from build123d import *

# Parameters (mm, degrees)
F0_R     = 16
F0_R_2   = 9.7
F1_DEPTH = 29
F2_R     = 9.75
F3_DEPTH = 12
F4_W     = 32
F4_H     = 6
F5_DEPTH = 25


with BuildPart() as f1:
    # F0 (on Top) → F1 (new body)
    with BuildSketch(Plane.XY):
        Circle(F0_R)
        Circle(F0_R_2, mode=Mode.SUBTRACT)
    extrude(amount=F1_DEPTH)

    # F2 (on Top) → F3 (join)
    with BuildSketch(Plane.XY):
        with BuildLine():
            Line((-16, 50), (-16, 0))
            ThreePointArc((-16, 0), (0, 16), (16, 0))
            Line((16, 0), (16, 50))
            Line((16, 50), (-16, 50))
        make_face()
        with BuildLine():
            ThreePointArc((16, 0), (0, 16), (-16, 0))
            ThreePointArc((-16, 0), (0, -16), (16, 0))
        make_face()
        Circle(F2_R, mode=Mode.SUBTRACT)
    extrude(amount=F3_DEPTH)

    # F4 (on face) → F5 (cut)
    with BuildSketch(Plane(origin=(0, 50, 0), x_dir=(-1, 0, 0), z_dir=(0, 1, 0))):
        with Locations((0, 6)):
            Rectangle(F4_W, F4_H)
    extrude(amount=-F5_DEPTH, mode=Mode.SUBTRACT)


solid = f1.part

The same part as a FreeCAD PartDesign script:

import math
import FreeCAD as App
import Part
import Sketcher

V = App.Vector

doc = App.newDocument("Part")
body = doc.addObject("PartDesign::Body", "Body")

# Sketch on XY plane
sketch1 = body.newObject("Sketcher::SketchObject", "Sketch")
sketch1.AttachmentSupport = (doc.getObject("XY_Plane"), [""])
sketch1.MapMode = "FlatFace"
sketch1.addGeometry(Part.Circle(V(0, 0, 0), V(0, 0, 1), 16), False)
sketch1.addGeometry(Part.Circle(V(0, 0, 0), V(0, 0, 1), 10), False)
sketch1.addConstraint(Sketcher.Constraint("Coincident", 0, 3, -1, 1))
sketch1.addConstraint(Sketcher.Constraint("Coincident", 1, 3, -1, 1))
sketch1.addConstraint(Sketcher.Constraint("Diameter", 0, 32.0))
sketch1.addConstraint(Sketcher.Constraint("Diameter", 1, 19.4))
pad1 = body.newObject("PartDesign::Pad", "Pad")
pad1.Profile = sketch1
pad1.Length = 29

# Sketch on XY plane
sketch2 = body.newObject("Sketcher::SketchObject", "Sketch001")
sketch2.AttachmentSupport = (doc.getObject("XY_Plane"), [""])
sketch2.MapMode = "FlatFace"
sketch2.addGeometry(Part.LineSegment(V(-16, 50, 0), V(-16, 0, 0)), False)
sketch2.addGeometry(Part.ArcOfCircle(Part.Circle(V(0, 0, 0), V(0, 0, 1), 16), math.radians(180), math.radians(360)), False)
sketch2.addGeometry(Part.LineSegment(V(16, 0, 0), V(16, 50, 0)), False)
sketch2.addGeometry(Part.LineSegment(V(16, 50, 0), V(-16, 50, 0)), False)
sketch2.addGeometry(Part.Circle(V(0, 0, 0), V(0, 0, 1), 10), False)
sketch2.addConstraint(Sketcher.Constraint("Tangent", 0, 2, 1, 1))
sketch2.addConstraint(Sketcher.Constraint("Tangent", 1, 2, 2, 1))
sketch2.addConstraint(Sketcher.Constraint("Coincident", 2, 2, 3, 1))
sketch2.addConstraint(Sketcher.Constraint("Coincident", 3, 2, 0, 1))
sketch2.addConstraint(Sketcher.Constraint("Vertical", 0))
sketch2.addConstraint(Sketcher.Constraint("Vertical", 2))
sketch2.addConstraint(Sketcher.Constraint("Horizontal", 3))
sketch2.addConstraint(Sketcher.Constraint("Coincident", 1, 3, -1, 1))
sketch2.addConstraint(Sketcher.Constraint("Coincident", 4, 3, -1, 1))
sketch2.addConstraint(Sketcher.Constraint("Radius", 1, 16.0))
sketch2.addConstraint(Sketcher.Constraint("Diameter", 4, 19.5))
sketch2.addConstraint(Sketcher.Constraint("DistanceY", 0, 2, 0, 1, 50.0))
pad2 = body.newObject("PartDesign::Pad", "Pad001")
pad2.Profile = sketch2
pad2.Length = 12

# Sketch on XZ plane
sketch3 = body.newObject("Sketcher::SketchObject", "Sketch002")
sketch3.AttachmentSupport = (doc.getObject("XZ_Plane"), [""])
sketch3.MapMode = "FlatFace"
sketch3.AttachmentOffset = App.Placement(V(0, 0, -50), App.Rotation())
sketch3.addGeometry(Part.LineSegment(V(16, 9, 0), V(16, 3, 0)), False)
sketch3.addGeometry(Part.LineSegment(V(16, 3, 0), V(-16, 3, 0)), False)
sketch3.addGeometry(Part.LineSegment(V(-16, 3, 0), V(-16, 9, 0)), False)
sketch3.addGeometry(Part.LineSegment(V(-16, 9, 0), V(16, 9, 0)), False)
sketch3.addConstraint(Sketcher.Constraint("Coincident", 0, 2, 1, 1))
sketch3.addConstraint(Sketcher.Constraint("Coincident", 1, 2, 2, 1))
sketch3.addConstraint(Sketcher.Constraint("Coincident", 2, 2, 3, 1))
sketch3.addConstraint(Sketcher.Constraint("Coincident", 3, 2, 0, 1))
sketch3.addConstraint(Sketcher.Constraint("Vertical", 0))
sketch3.addConstraint(Sketcher.Constraint("Horizontal", 1))
sketch3.addConstraint(Sketcher.Constraint("Vertical", 2))
sketch3.addConstraint(Sketcher.Constraint("Horizontal", 3))
sketch3.addConstraint(Sketcher.Constraint("DistanceX", 1, 2, 1, 1, 32.0))
sketch3.addConstraint(Sketcher.Constraint("DistanceY", 0, 2, 0, 1, 6.0))
sketch3.addConstraint(Sketcher.Constraint("DistanceX", -1, 1, 0, 2, 16.0))
sketch3.addConstraint(Sketcher.Constraint("DistanceY", -1, 1, 0, 2, 3.0))
pocket1 = body.newObject("PartDesign::Pocket", "Pocket")
pocket1.Profile = sketch3
pocket1.Length = 25
pocket1.Reversed = True

doc.recompute()
